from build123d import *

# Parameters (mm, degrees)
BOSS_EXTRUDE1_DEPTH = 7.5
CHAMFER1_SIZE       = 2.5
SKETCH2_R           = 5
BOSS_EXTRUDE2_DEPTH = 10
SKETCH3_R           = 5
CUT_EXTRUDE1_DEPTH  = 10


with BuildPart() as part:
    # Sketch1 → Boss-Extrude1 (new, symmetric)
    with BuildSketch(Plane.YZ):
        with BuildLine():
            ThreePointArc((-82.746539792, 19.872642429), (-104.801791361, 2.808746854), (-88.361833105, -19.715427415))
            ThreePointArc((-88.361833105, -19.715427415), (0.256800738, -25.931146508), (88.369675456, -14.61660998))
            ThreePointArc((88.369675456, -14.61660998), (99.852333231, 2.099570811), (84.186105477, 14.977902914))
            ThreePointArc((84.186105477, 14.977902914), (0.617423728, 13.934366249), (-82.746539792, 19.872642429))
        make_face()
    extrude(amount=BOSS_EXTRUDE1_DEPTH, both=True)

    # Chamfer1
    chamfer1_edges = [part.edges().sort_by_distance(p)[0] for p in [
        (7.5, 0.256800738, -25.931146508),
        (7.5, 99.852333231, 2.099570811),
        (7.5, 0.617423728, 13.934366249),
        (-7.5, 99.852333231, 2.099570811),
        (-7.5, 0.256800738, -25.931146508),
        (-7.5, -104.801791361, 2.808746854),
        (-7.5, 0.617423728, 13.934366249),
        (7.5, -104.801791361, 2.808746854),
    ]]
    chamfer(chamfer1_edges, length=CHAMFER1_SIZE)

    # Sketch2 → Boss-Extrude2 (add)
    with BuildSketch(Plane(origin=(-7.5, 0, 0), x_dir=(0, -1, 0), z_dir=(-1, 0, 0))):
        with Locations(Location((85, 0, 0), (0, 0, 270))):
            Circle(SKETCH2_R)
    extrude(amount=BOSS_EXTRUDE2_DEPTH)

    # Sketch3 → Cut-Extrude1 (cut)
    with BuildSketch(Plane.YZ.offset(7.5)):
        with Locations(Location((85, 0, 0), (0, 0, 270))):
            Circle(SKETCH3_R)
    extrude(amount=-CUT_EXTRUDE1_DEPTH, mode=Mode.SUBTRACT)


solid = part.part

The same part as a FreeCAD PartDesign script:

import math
import FreeCAD as App
import Part
import Sketcher

V = App.Vector


def edges_at(feature, points):
    """Names of the edges that pass closest to the given points."""
    edges = feature.Shape.Edges
    near = lambda p: min(range(len(edges)), key=lambda i: edges[i].distToShape(Part.Vertex(*p))[0])
    return sorted({f"Edge{near(p) + 1}" for p in points})

doc = App.newDocument("Part")
body = doc.addObject("PartDesign::Body", "Body")

sketch1 = body.newObject("Sketcher::SketchObject", "Sketch")
sketch1.AttachmentSupport = (doc.getObject("YZ_Plane"), [""])
sketch1.MapMode = "FlatFace"
sketch1.addGeometry([
    Part.ArcOfCircle(Part.Circle(V(-85, 0, 0), V(0, 0, 1), 20), math.radians(84), math.radians(260)),
    Part.ArcOfCircle(Part.Circle(V(-13, 424, 0), V(0, 0, 1), 450), math.radians(-100), math.radians(-77)),
    Part.ArcOfCircle(Part.Circle(V(85, 0, 0), V(0, 0, 1), 15), math.radians(-77), math.radians(93)),
    Part.ArcOfCircle(Part.Circle(V(30, 1014, 0), V(0, 0, 1), 1000), math.radians(-96.47), math.radians(-86.89)),
], False)
sketch1.addConstraint([
    Sketcher.Constraint("Tangent", 0, 2, 1, 1),
    Sketcher.Constraint("Tangent", 1, 2, 2, 1),
    Sketcher.Constraint("Tangent", 2, 2, 3, 2),
    Sketcher.Constraint("Tangent", 3, 1, 0, 1),
    Sketcher.Constraint("Symmetric", 0, 3, 2, 3, -1, 1),
    Sketcher.Constraint("PointOnObject", 0, 3, -1),
    Sketcher.Constraint("Radius", 0, 20.0),
    Sketcher.Constraint("Radius", 1, 450.0),
    Sketcher.Constraint("Radius", 2, 15.0),
    Sketcher.Constraint("Radius", 3, 1000.0),
    Sketcher.Constraint("DistanceX", 0, 3, -1, 1, 85.0),
])
pad1 = body.newObject("PartDesign::Pad", "Pad")
pad1.Profile = sketch1
pad1.Length = 15
pad1.Midplane = True
doc.recompute()

chamfer = body.newObject("PartDesign::Chamfer", "Chamfer")
chamfer.Base = (pad1, edges_at(pad1, [
    (7.5, 0.257, -25.931),
    (7.5, 99.852, 2.1),
    (7.5, 0.617, 13.934),
    (-7.5, 99.852, 2.1),
    (-7.5, 0.257, -25.931),
    (-7.5, -104.802, 2.809),
    (-7.5, 0.617, 13.934),
    (7.5, -104.802, 2.809),
]))
chamfer.Size = 2.5

sketch2 = body.newObject("Sketcher::SketchObject", "Sketch001")
sketch2.AttachmentSupport = (doc.getObject("YZ_Plane"), [""])
sketch2.MapMode = "FlatFace"
sketch2.AttachmentOffset = App.Placement(V(0, 0, -7.5), App.Rotation())
sketch2.addGeometry(Part.Circle(V(-85, 0, 0), V(0, 0, 1), 5), False)
sketch2.addConstraint([
    Sketcher.Constraint("PointOnObject", 0, 3, -1),
    Sketcher.Constraint("Diameter", 0, 10.0),
    Sketcher.Constraint("DistanceX", 0, 3, -1, 1, 85.0),
])
pad2 = body.newObject("PartDesign::Pad", "Pad001")
pad2.Profile = sketch2
pad2.Length = 10
pad2.Reversed = True

sketch3 = body.newObject("Sketcher::SketchObject", "Sketch002")
sketch3.AttachmentSupport = (doc.getObject("YZ_Plane"), [""])
sketch3.MapMode = "FlatFace"
sketch3.AttachmentOffset = App.Placement(V(0, 0, 7.5), App.Rotation())
sketch3.addGeometry(Part.Circle(V(85, 0, 0), V(0, 0, 1), 5), False)
sketch3.addConstraint([
    Sketcher.Constraint("PointOnObject", 0, 3, -1),
    Sketcher.Constraint("Diameter", 0, 10.0),
    Sketcher.Constraint("DistanceX", -1, 1, 0, 3, 85.0),
])
pocket1 = body.newObject("PartDesign::Pocket", "Pocket")
pocket1.Profile = sketch3
pocket1.Length = 10

doc.recompute()
